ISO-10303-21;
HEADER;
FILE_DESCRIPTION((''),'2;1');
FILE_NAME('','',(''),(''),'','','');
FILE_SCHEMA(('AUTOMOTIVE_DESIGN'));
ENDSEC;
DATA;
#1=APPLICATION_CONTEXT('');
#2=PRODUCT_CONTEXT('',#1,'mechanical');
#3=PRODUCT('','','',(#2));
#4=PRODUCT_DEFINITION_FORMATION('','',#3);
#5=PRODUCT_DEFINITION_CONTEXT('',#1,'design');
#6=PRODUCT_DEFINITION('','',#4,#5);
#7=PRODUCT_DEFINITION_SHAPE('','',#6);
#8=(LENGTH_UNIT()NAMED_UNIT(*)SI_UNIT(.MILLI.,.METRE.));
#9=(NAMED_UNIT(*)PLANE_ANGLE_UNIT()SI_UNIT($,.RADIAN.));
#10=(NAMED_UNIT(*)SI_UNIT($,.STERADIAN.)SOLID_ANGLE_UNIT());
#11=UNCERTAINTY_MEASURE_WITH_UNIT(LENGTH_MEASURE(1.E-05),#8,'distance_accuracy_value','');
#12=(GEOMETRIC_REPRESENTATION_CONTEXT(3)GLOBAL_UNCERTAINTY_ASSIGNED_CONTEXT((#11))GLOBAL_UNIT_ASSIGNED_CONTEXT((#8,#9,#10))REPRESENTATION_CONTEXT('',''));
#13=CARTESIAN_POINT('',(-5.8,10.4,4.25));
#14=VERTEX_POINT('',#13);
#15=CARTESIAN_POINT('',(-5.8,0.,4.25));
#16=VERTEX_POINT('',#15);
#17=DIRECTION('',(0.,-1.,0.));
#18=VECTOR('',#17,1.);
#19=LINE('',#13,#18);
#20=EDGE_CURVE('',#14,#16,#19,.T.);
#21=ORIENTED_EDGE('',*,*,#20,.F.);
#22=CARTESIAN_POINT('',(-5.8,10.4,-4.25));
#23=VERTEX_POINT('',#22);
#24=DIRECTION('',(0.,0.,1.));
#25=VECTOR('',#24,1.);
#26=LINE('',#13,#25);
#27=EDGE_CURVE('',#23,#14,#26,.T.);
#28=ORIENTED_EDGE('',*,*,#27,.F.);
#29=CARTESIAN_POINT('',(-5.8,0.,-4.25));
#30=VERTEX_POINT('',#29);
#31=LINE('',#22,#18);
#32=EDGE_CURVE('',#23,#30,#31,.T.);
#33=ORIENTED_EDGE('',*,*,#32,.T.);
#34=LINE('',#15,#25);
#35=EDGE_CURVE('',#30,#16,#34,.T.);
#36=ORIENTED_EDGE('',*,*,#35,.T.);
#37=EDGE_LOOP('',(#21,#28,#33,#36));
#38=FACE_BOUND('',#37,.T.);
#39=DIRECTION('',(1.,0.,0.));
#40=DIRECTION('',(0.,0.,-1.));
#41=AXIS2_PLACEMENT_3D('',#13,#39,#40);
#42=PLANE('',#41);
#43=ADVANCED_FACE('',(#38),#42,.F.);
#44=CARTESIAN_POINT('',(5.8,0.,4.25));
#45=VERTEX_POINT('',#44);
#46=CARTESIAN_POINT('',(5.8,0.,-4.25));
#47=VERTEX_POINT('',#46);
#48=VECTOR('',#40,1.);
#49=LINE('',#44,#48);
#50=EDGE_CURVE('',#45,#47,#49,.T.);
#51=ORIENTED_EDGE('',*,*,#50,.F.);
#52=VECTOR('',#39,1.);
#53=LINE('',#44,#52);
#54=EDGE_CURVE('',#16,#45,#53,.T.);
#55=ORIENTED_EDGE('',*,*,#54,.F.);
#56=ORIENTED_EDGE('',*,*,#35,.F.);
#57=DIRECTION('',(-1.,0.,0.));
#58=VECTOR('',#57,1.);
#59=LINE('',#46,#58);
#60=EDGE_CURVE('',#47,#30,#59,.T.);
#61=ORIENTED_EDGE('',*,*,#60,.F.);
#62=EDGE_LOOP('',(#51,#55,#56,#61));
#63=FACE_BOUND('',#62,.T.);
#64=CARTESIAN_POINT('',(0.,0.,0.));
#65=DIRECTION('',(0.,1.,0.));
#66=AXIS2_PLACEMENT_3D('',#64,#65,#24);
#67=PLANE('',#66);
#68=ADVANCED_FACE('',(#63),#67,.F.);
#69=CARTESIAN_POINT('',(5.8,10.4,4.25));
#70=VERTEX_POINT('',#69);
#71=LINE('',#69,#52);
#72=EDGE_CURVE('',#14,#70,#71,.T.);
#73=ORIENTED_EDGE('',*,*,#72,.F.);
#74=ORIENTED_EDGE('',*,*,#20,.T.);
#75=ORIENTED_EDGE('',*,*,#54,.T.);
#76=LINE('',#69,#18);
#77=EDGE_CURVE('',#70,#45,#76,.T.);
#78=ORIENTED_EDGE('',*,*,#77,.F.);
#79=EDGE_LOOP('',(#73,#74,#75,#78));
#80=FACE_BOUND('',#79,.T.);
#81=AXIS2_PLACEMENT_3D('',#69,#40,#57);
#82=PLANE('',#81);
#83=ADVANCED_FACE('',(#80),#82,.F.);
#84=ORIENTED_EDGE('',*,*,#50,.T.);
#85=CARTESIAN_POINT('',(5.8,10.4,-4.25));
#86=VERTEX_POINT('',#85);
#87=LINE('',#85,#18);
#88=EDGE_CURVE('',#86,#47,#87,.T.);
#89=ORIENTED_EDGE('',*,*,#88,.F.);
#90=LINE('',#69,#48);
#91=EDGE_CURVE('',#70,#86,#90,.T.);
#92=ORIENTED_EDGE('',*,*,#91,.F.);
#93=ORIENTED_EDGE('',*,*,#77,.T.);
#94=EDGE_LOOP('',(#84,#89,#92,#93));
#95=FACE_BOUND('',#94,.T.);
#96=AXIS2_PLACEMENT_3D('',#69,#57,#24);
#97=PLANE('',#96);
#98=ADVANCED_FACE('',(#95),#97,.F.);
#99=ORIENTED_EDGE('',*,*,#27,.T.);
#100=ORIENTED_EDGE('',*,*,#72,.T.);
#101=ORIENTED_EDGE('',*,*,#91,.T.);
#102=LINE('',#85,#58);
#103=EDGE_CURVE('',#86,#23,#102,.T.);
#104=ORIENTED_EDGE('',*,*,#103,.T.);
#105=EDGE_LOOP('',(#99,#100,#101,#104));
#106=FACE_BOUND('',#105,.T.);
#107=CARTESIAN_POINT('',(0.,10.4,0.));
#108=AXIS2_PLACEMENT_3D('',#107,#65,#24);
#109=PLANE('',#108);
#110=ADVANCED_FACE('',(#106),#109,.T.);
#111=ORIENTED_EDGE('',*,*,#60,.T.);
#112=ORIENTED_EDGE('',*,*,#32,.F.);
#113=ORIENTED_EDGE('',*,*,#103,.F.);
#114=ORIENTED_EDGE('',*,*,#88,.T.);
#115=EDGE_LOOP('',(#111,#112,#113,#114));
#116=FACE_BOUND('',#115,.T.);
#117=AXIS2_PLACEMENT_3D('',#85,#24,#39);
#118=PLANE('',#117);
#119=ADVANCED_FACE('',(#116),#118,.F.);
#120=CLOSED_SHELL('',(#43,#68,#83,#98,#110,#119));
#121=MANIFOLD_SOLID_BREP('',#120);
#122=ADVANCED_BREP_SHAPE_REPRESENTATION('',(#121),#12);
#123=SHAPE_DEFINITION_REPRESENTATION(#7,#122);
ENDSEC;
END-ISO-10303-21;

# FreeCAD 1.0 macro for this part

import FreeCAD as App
import Part
import Sketcher
from FreeCAD import Vector


def add_polygon(sketch, points):
    """Adds a closed chain of lines whose ends are joined by coincident constraints."""
    first, n = sketch.GeometryCount, len(points)
    for a, b in zip(points, points[1:] + points[:1]):
        sketch.addGeometry(Part.LineSegment(App.Vector(*a, 0), App.Vector(*b, 0)), False)
    for i in range(n):
        sketch.addConstraint(Sketcher.Constraint("Coincident", first + i, 2, first + (i + 1) % n, 1))

doc = App.newDocument("Part")
body = doc.addObject("PartDesign::Body", "Body")

sketch1 = body.newObject("Sketcher::SketchObject", "Sketch")
sketch1.AttachmentSupport = (doc.getObject("XZ_Plane"), [""])
sketch1.MapMode = "FlatFace"
add_polygon(sketch1, [(-6, -4), (-6, 4), (6, 4), (6, -4)])
sketch1.addConstraint([
    Sketcher.Constraint("Vertical", 0),
    Sketcher.Constraint("Horizontal", 1),
    Sketcher.Constraint("Vertical", 2),
    Sketcher.Constraint("Horizontal", 3),
    Sketcher.Constraint("Symmetric", 0, 2, 2, 2, -1, 1),
    Sketcher.Constraint("DistanceX", 1, 1, 1, 2, 11.6),
    Sketcher.Constraint("DistanceY", 0, 1, 0, 2, 8.5),
])
pad1 = body.newObject("PartDesign::Pad", "Pad")
pad1.Profile = sketch1
pad1.Length = 10.4
pad1.Reversed = True

doc.recompute()
